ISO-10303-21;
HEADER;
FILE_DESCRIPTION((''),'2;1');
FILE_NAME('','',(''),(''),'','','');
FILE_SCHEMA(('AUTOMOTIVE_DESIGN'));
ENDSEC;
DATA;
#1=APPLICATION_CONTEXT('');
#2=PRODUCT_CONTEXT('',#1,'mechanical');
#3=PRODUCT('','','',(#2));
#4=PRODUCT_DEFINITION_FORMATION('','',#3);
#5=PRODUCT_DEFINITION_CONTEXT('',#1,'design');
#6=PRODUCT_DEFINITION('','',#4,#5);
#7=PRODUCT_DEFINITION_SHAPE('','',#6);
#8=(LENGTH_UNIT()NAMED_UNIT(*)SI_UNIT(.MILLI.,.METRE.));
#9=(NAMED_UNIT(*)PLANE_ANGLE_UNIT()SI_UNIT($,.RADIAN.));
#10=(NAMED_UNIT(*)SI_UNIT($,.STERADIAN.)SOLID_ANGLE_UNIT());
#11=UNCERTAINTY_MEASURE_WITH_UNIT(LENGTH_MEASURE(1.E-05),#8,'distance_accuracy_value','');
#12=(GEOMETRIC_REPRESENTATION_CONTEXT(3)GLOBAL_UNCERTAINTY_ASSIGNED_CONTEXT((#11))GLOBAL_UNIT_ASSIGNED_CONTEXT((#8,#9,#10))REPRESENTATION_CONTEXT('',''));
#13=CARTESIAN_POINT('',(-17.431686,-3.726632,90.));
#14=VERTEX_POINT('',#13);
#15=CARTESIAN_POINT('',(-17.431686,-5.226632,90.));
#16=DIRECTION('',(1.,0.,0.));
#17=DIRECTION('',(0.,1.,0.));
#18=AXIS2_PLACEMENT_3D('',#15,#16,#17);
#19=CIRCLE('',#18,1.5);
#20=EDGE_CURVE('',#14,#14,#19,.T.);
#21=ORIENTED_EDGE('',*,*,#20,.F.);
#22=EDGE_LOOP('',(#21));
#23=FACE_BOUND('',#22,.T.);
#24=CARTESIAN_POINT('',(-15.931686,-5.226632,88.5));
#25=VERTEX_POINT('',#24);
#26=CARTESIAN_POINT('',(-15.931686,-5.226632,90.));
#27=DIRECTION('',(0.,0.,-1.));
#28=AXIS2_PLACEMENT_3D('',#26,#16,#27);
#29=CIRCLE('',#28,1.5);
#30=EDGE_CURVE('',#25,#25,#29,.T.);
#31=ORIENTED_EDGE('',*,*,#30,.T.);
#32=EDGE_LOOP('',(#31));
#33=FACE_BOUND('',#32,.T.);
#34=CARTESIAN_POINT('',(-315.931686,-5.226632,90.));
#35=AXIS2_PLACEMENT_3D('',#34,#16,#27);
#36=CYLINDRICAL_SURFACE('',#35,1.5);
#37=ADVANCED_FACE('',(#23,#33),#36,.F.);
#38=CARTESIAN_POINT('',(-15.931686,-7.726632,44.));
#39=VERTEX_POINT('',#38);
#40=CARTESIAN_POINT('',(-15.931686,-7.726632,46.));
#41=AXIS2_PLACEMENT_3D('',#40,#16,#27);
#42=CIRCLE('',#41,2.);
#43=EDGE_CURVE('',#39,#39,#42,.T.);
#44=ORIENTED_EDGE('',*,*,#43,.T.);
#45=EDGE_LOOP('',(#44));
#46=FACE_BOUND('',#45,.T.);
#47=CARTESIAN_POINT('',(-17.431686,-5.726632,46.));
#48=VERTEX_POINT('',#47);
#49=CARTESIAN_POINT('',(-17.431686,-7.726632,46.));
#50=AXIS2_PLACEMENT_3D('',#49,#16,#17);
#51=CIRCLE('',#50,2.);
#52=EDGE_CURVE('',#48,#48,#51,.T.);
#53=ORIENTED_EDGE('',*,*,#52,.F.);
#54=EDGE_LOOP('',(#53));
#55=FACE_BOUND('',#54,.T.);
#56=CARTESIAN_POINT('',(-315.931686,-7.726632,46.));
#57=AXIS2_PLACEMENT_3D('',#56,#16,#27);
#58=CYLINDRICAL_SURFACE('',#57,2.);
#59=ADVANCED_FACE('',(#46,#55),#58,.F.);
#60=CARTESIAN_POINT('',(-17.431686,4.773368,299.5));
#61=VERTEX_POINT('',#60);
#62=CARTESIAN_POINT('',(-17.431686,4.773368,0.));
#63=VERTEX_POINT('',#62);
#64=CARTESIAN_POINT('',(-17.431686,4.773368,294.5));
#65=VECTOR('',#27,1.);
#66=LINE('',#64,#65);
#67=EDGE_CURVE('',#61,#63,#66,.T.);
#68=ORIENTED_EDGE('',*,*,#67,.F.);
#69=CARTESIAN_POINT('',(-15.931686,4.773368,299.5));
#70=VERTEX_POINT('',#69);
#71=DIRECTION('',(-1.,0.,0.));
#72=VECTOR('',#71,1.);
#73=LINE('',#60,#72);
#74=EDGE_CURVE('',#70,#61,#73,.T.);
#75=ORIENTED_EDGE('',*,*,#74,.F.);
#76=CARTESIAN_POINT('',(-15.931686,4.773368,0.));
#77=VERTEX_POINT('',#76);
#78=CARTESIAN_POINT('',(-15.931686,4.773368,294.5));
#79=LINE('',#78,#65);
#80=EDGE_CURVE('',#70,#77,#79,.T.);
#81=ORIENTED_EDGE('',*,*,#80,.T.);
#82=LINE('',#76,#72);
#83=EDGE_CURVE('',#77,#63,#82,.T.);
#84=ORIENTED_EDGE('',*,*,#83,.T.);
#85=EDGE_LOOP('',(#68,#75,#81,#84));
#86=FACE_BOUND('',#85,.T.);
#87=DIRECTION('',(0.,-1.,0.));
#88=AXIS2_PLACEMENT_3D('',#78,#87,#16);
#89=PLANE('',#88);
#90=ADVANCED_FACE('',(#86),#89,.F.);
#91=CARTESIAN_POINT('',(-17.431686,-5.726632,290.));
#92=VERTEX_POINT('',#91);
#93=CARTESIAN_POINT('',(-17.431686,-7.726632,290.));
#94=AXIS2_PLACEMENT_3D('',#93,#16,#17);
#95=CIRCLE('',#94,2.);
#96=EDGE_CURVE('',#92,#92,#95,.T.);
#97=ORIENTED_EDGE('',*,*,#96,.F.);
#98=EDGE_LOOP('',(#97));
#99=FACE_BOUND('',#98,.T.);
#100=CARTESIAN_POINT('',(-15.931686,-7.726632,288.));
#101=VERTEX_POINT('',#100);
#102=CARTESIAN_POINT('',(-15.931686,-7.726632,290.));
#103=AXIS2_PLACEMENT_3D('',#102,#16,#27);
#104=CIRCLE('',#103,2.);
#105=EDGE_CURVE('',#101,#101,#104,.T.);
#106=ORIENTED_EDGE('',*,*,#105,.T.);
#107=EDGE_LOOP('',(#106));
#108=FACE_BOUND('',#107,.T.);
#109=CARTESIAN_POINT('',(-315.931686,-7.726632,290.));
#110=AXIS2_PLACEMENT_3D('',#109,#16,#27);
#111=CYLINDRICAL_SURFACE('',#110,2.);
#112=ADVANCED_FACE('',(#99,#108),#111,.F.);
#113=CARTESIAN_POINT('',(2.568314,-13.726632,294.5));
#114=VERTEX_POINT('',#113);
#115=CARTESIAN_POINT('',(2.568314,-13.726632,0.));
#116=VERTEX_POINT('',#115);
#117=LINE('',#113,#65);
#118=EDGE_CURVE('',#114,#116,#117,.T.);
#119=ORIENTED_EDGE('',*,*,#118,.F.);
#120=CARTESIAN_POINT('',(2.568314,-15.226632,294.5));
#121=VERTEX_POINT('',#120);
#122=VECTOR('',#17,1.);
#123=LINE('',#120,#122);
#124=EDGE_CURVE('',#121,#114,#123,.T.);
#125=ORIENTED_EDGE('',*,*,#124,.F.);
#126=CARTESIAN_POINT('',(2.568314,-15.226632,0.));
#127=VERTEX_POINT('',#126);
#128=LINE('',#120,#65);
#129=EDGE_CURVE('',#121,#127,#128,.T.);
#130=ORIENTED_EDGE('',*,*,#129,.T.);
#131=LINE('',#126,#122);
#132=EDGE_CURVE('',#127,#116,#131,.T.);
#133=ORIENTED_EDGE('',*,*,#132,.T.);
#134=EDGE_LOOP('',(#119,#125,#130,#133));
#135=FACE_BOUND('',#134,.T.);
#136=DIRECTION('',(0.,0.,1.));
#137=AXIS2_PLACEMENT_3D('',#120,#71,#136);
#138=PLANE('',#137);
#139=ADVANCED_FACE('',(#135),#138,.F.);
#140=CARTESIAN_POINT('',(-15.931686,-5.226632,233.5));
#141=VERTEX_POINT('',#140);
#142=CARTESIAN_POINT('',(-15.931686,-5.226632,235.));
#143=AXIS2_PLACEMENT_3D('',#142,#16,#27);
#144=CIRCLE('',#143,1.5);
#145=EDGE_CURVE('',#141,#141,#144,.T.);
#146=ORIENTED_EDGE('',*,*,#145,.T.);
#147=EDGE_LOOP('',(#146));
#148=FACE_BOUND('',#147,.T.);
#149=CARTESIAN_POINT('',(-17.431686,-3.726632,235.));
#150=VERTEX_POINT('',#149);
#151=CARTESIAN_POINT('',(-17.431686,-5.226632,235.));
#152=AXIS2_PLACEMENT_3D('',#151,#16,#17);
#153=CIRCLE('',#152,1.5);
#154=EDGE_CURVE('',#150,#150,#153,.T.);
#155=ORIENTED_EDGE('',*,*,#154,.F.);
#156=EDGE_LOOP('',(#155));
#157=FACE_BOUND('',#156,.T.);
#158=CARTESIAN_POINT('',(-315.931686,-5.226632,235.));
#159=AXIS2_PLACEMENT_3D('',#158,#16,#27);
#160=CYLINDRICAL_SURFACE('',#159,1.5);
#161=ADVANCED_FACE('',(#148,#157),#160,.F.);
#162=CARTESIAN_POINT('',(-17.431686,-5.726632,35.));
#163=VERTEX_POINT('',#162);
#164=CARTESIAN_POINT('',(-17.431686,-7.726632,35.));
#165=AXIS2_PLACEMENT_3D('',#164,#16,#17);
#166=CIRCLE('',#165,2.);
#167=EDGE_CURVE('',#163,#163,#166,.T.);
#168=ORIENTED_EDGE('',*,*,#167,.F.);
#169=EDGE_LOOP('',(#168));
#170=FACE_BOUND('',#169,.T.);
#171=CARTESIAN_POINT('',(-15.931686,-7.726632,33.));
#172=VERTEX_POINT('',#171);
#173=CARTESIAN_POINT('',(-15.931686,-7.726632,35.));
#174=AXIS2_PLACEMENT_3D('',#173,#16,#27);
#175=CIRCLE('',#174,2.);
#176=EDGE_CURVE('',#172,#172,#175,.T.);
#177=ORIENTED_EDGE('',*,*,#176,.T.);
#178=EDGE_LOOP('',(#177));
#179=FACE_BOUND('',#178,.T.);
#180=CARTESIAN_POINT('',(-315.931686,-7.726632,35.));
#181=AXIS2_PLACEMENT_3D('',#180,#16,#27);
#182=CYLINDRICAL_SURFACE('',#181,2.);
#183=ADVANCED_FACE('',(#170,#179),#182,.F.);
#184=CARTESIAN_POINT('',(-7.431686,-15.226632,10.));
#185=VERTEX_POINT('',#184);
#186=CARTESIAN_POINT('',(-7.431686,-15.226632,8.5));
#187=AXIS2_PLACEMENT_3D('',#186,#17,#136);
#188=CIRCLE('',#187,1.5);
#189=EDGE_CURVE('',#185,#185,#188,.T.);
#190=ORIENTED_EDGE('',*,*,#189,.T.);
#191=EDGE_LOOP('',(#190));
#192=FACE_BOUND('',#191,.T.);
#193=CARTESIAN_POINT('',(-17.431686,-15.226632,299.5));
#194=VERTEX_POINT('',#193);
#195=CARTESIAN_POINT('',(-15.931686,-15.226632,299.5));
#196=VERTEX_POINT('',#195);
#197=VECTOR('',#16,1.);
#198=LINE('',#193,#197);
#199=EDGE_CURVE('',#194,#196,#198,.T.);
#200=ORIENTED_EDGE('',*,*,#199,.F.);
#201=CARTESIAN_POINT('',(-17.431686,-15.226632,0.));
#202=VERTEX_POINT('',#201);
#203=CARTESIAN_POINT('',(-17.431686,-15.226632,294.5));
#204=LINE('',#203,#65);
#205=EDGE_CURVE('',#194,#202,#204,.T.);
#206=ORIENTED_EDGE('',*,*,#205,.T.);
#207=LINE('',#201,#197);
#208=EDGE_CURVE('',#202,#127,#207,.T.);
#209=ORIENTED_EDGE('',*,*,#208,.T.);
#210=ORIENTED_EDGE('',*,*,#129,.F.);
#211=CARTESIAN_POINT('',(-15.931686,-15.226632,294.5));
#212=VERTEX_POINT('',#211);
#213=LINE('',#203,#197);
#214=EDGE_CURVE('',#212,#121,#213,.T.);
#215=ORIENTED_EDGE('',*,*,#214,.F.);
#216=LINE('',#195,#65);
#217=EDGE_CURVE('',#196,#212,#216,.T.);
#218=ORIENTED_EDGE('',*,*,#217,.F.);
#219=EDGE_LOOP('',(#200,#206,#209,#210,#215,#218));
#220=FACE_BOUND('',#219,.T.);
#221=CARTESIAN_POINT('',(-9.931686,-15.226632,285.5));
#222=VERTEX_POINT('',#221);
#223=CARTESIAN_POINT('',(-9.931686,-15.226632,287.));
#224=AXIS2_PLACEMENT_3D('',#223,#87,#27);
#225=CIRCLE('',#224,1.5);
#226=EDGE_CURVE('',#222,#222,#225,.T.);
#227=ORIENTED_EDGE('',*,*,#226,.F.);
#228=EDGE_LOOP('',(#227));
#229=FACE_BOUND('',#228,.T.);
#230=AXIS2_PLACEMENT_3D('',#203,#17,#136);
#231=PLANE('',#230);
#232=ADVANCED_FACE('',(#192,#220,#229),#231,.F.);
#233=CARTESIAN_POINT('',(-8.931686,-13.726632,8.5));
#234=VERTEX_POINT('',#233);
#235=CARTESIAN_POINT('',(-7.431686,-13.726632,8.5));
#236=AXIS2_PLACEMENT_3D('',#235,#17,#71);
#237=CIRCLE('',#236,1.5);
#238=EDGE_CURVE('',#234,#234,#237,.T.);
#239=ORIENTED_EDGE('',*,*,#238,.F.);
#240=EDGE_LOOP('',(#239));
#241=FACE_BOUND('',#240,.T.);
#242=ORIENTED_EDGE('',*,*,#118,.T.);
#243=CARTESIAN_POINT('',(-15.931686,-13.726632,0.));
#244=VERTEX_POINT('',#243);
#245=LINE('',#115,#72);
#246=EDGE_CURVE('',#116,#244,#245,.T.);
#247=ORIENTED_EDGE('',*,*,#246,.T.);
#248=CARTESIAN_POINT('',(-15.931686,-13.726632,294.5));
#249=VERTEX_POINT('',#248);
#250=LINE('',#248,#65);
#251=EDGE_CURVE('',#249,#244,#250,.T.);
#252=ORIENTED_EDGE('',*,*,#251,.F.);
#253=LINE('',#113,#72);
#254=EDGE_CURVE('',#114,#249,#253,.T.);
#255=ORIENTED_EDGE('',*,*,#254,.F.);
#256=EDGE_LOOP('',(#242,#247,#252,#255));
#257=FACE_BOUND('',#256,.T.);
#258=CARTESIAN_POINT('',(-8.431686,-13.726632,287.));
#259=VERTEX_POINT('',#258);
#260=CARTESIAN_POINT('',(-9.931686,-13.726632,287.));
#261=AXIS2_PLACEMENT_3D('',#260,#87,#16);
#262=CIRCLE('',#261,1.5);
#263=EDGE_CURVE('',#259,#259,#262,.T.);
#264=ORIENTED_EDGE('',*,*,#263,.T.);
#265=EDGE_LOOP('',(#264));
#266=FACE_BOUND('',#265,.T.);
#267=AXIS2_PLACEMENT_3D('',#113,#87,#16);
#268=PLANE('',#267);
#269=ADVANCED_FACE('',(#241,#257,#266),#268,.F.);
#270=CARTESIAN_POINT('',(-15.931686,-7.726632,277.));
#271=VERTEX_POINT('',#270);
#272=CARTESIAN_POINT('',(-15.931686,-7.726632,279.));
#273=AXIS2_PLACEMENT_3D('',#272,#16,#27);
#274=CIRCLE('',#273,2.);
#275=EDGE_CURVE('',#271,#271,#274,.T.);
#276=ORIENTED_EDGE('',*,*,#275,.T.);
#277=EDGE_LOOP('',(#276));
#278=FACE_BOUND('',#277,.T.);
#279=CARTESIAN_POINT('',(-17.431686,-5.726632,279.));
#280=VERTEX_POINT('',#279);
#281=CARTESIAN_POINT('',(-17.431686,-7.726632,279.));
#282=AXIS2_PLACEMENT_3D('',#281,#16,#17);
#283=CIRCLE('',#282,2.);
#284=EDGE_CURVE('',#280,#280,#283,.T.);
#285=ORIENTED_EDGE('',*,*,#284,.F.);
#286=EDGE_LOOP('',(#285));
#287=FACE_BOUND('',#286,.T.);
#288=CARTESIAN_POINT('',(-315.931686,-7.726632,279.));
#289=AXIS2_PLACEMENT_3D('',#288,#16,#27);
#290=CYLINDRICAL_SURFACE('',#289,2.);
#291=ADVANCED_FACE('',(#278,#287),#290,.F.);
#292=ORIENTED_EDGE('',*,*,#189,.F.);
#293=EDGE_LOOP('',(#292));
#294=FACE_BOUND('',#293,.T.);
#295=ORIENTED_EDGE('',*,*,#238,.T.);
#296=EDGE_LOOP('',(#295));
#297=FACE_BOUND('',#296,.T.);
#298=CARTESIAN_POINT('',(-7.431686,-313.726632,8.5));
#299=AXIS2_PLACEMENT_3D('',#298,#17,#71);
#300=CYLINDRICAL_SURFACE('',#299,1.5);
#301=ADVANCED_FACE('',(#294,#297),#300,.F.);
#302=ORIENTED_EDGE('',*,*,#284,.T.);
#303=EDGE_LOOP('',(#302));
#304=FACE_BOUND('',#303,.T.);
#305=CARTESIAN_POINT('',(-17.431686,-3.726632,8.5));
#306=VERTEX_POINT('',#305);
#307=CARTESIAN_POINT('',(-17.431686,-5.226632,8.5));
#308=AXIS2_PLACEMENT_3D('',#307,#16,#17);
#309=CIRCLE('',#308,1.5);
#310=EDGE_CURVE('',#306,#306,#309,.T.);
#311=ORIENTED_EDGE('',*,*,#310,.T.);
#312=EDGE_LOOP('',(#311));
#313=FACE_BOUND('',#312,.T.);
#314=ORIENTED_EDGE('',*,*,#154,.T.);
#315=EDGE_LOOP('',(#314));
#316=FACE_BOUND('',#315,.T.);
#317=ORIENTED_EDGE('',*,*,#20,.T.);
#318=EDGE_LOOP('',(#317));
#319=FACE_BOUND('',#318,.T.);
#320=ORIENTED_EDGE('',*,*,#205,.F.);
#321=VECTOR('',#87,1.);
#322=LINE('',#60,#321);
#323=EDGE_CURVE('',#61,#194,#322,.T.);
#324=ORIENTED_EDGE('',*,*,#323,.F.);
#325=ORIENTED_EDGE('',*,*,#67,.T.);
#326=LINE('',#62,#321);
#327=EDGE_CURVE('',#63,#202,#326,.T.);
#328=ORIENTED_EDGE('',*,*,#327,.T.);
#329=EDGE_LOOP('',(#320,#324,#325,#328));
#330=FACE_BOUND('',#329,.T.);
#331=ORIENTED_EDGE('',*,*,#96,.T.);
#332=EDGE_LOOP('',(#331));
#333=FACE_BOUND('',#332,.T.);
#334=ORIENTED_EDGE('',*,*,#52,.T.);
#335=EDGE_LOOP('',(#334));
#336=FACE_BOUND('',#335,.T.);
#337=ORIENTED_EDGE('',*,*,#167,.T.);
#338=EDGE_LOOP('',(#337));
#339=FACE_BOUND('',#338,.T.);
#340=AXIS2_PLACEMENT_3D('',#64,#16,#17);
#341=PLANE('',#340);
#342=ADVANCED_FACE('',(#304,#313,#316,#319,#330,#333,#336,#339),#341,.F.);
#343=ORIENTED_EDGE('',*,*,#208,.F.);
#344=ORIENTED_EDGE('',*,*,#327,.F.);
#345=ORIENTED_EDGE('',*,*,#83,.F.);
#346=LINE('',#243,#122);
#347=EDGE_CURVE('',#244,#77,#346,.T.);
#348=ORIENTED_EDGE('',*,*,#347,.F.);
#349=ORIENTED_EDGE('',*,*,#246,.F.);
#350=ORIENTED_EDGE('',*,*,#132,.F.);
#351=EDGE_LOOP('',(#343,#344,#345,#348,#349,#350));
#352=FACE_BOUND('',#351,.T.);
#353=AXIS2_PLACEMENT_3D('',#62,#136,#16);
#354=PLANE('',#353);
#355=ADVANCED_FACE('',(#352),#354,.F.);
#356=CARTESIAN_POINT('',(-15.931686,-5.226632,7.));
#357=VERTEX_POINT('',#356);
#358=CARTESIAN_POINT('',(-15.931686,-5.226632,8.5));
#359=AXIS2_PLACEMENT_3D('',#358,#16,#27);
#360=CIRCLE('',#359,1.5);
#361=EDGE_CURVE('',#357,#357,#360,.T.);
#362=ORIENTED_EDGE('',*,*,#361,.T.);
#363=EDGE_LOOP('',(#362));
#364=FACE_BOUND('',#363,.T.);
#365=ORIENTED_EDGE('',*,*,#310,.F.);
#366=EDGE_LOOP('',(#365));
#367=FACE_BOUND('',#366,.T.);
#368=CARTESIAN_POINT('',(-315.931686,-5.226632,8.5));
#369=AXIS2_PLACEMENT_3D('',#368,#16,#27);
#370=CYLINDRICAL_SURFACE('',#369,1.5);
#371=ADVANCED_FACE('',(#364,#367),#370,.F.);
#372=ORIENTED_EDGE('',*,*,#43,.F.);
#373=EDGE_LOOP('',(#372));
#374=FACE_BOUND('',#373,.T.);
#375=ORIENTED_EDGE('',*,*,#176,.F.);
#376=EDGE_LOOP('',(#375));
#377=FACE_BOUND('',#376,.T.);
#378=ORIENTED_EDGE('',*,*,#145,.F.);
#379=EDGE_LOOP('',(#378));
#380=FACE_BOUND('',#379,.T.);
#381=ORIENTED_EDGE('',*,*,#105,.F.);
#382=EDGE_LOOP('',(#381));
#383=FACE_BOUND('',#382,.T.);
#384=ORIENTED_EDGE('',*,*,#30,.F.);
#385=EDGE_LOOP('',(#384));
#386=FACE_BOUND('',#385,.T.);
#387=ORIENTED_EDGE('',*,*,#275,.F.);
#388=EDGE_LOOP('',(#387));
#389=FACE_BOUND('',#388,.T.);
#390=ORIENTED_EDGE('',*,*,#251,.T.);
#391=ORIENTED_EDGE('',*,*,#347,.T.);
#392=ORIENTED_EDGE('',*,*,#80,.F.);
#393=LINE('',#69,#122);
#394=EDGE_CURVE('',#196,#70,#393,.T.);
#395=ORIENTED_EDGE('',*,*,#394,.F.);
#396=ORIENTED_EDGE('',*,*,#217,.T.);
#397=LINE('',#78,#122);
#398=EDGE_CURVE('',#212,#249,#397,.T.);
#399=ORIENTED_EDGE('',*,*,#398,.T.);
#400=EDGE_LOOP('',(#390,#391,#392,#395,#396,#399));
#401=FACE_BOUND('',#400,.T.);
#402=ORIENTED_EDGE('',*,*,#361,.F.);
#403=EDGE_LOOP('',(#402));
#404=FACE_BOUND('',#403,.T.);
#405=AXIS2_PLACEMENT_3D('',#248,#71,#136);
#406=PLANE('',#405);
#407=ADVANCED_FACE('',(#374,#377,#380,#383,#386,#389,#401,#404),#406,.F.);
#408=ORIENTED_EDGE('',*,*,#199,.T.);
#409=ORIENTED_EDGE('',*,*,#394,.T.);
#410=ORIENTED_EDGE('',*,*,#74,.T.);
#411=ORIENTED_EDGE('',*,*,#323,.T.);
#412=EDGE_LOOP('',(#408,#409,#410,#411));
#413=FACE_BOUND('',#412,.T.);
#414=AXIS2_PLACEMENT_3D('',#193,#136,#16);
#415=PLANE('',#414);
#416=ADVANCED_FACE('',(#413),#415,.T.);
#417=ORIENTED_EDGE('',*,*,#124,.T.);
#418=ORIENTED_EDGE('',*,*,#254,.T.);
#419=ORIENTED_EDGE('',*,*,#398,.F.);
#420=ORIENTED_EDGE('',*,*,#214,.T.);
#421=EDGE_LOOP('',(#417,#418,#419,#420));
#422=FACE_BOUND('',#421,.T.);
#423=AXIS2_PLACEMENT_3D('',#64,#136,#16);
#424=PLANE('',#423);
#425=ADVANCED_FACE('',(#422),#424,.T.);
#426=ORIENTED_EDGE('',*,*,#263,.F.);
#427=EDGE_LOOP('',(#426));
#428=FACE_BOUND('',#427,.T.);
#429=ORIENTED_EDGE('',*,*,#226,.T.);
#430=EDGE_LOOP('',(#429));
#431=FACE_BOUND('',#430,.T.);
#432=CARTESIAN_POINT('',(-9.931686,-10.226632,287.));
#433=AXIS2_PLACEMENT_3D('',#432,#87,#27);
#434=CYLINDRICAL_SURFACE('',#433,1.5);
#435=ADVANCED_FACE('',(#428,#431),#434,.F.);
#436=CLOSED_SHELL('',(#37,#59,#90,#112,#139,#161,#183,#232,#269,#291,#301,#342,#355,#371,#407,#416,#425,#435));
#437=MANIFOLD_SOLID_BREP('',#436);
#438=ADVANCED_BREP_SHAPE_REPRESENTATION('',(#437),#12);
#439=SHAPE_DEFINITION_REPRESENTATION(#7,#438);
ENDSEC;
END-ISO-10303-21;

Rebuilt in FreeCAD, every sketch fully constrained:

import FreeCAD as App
import Part
import Sketcher
from FreeCAD import Vector
Q = App.Units.Quantity


def add_polygon(sketch, points):
    """Adds a closed chain of lines whose ends are joined by coincident constraints."""
    first, n = sketch.GeometryCount, len(points)
    for a, b in zip(points, points[1:] + points[:1]):
        sketch.addGeometry(Part.LineSegment(App.Vector(*a, 0), App.Vector(*b, 0)), False)
    for i in range(n):
        sketch.addConstraint(Sketcher.Constraint("Coincident", first + i, 2, first + (i + 1) % n, 1))

doc = App.newDocument("Part")
body = doc.addObject("PartDesign::Body", "Body")

# Sketch on XY plane
sketch1 = body.newObject("Sketcher::SketchObject", "Sketch")
sketch1.AttachmentSupport = (doc.getObject("XY_Plane"), [""])
sketch1.MapMode = "FlatFace"
add_polygon(sketch1, [(-17.431686, 4.773368), (-17.431686, -15.226632), (2.568314, -15.226632), (2.568314, -13.726632), (-15.931686, -13.726632), (-15.931686, 4.773368)])  # lines 0-5
sketch1.addConstraint([
    Sketcher.Constraint("Vertical", 0),
    Sketcher.Constraint("Horizontal", 1),
    Sketcher.Constraint("Vertical", 2),
    Sketcher.Constraint("Horizontal", 3),
    Sketcher.Constraint("Vertical", 4),
    Sketcher.Constraint("Horizontal", 5),
    Sketcher.Constraint("Equal", 1, 0),
    Sketcher.Constraint("Equal", 5, 2),
    Sketcher.Constraint("DistanceX", 1, 1, 1, 2, Q("20 mm")),
    Sketcher.Constraint("DistanceX", 3, 2, 3, 1, Q("18.5 mm")),
    Sketcher.Constraint("DistanceY", 0, 2, -1, 1, Q("15.226632 mm")),
    Sketcher.Constraint("DistanceX", 0, 2, -1, 1, Q("17.431686 mm")),
])
pad1 = body.newObject("PartDesign::Pad", "Pad")
pad1.Profile = sketch1
pad1.Length = 294.5

# Sketch on XZ plane
sketch2 = body.newObject("Sketcher::SketchObject", "Sketch001")
sketch2.AttachmentSupport = (doc.getObject("XZ_Plane"), [""])
sketch2.MapMode = "FlatFace"
sketch2.AttachmentOffset = App.Placement(Vector(0, 0, 13.726632), App.Rotation())
sketch2.addGeometry(Part.Circle(Vector(-7.431686, 8.5, 0), Vector(0, 0, 1), 1.5), False)
sketch2.addConstraint([
    Sketcher.Constraint("Diameter", 0, Q("3 mm")),
    Sketcher.Constraint("DistanceY", -1, 1, 0, 3, Q("8.5 mm")),
    Sketcher.Constraint("DistanceX", 0, 3, -1, 1, Q("7.431686 mm")),
])
pocket1 = body.newObject("PartDesign::Pocket", "Pocket")
pocket1.Profile = sketch2
pocket1.Length = 300
pocket1.Reversed = True

# Sketch on YZ plane
sketch3 = body.newObject("Sketcher::SketchObject", "Sketch002")
sketch3.AttachmentSupport = (doc.getObject("YZ_Plane"), [""])
sketch3.MapMode = "FlatFace"
sketch3.AttachmentOffset = App.Placement(Vector(0, 0, -15.931686), App.Rotation())
sketch3.addGeometry([
    Part.Circle(Vector(-5.226632, 8.5, 0), Vector(0, 0, 1), 1.5),  # 0
    Part.Circle(Vector(-7.726632, 35, 0), Vector(0, 0, 1), 2),  # 1
    Part.Circle(Vector(-7.726632, 46, 0), Vector(0, 0, 1), 2),  # 2
    Part.Circle(Vector(-7.726632, 290, 0), Vector(0, 0, 1), 2),  # 3
    Part.Circle(Vector(-7.726632, 279, 0), Vector(0, 0, 1), 2),  # 4
    Part.Circle(Vector(-5.226632, 235, 0), Vector(0, 0, 1), 1.5),  # 5
    Part.Circle(Vector(-5.226632, 90, 0), Vector(0, 0, 1), 1.5),  # 6
], False)
sketch3.addConstraint([
    Sketcher.Constraint("Equal", 1, 2),
    Sketcher.Constraint("Equal", 2, 3),
    Sketcher.Constraint("Equal", 3, 4),
    Sketcher.Constraint("Equal", 0, 5),
    Sketcher.Constraint("Equal", 5, 6),
    Sketcher.Constraint("Vertical", 1, 3, 2, 3),
    Sketcher.Constraint("Vertical", 2, 3, 3, 3),
    Sketcher.Constraint("Vertical", 3, 3, 4, 3),
    Sketcher.Constraint("Vertical", 0, 3, 5, 3),
    Sketcher.Constraint("Vertical", 5, 3, 6, 3),
    Sketcher.Constraint("Diameter", 0, Q("3 mm")),
    Sketcher.Constraint("Diameter", 1, Q("4 mm")),
    Sketcher.Constraint("DistanceY", -1, 1, 1, 3, Q("35 mm")),
    Sketcher.Constraint("DistanceY", -1, 1, 2, 3, Q("46 mm")),
    Sketcher.Constraint("DistanceY", -1, 1, 3, 3, Q("290 mm")),
    Sketcher.Constraint("DistanceY", -1, 1, 4, 3, Q("279 mm")),
    Sketcher.Constraint("DistanceY", -1, 1, 5, 3, Q("235 mm")),
    Sketcher.Constraint("DistanceY", -1, 1, 6, 3, Q("90 mm")),
    Sketcher.Constraint("DistanceY", -1, 1, 0, 3, Q("8.5 mm")),
    Sketcher.Constraint("DistanceX", 1, 3, 0, 3, Q("2.5 mm")),
    Sketcher.Constraint("DistanceX", 0, 3, -1, 1, Q("5.226632 mm")),
])
pocket2 = body.newObject("PartDesign::Pocket", "Pocket001")
pocket2.Profile = sketch3
pocket2.Length = 300

# Sketch on XY plane
sketch4 = body.newObject("Sketcher::SketchObject", "Sketch003")
sketch4.AttachmentSupport = (doc.getObject("XY_Plane"), [""])
sketch4.MapMode = "FlatFace"
sketch4.AttachmentOffset = App.Placement(Vector(0, 0, 294.5), App.Rotation())
add_polygon(sketch4, [(-17.431686, 4.773368), (-17.431686, -15.226632), (-15.931686, -15.226632), (-15.931686, 4.773368)])  # lines 0-3
sketch4.addConstraint([
    Sketcher.Constraint("Vertical", 0),
    Sketcher.Constraint("Horizontal", 1),
    Sketcher.Constraint("Vertical", 2),
    Sketcher.Constraint("Horizontal", 3),
    Sketcher.Constraint("DistanceY", 0, 2, 0, 1, Q("20 mm")),
    Sketcher.Constraint("DistanceX", 1, 1, 1, 2, Q("1.5 mm")),
    Sketcher.Constraint("DistanceY", 0, 2, -1, 1, Q("15.226632 mm")),
    Sketcher.Constraint("DistanceX", 0, 2, -1, 1, Q("17.431686 mm")),
])
pad2 = body.newObject("PartDesign::Pad", "Pad001")
pad2.Profile = sketch4
pad2.Length = 5

# Sketch on XZ plane
sketch5 = body.newObject("Sketcher::SketchObject", "Sketch004")
sketch5.AttachmentSupport = (doc.getObject("XZ_Plane"), [""])
sketch5.MapMode = "FlatFace"
sketch5.AttachmentOffset = App.Placement(Vector(0, 0, 15.226632), App.Rotation())
sketch5.addGeometry(Part.Circle(Vector(-9.931686, 287, 0), Vector(0, 0, 1), 1.5), False)
sketch5.addConstraint([
    Sketcher.Constraint("Diameter", 0, Q("3 mm")),
    Sketcher.Constraint("DistanceY", -1, 1, 0, 3, Q("287 mm")),
    Sketcher.Constraint("DistanceX", 0, 3, -1, 1, Q("9.931686 mm")),
])
pocket3 = body.newObject("PartDesign::Pocket", "Pocket002")
pocket3.Profile = sketch5
pocket3.Length = 5

doc.recompute()
